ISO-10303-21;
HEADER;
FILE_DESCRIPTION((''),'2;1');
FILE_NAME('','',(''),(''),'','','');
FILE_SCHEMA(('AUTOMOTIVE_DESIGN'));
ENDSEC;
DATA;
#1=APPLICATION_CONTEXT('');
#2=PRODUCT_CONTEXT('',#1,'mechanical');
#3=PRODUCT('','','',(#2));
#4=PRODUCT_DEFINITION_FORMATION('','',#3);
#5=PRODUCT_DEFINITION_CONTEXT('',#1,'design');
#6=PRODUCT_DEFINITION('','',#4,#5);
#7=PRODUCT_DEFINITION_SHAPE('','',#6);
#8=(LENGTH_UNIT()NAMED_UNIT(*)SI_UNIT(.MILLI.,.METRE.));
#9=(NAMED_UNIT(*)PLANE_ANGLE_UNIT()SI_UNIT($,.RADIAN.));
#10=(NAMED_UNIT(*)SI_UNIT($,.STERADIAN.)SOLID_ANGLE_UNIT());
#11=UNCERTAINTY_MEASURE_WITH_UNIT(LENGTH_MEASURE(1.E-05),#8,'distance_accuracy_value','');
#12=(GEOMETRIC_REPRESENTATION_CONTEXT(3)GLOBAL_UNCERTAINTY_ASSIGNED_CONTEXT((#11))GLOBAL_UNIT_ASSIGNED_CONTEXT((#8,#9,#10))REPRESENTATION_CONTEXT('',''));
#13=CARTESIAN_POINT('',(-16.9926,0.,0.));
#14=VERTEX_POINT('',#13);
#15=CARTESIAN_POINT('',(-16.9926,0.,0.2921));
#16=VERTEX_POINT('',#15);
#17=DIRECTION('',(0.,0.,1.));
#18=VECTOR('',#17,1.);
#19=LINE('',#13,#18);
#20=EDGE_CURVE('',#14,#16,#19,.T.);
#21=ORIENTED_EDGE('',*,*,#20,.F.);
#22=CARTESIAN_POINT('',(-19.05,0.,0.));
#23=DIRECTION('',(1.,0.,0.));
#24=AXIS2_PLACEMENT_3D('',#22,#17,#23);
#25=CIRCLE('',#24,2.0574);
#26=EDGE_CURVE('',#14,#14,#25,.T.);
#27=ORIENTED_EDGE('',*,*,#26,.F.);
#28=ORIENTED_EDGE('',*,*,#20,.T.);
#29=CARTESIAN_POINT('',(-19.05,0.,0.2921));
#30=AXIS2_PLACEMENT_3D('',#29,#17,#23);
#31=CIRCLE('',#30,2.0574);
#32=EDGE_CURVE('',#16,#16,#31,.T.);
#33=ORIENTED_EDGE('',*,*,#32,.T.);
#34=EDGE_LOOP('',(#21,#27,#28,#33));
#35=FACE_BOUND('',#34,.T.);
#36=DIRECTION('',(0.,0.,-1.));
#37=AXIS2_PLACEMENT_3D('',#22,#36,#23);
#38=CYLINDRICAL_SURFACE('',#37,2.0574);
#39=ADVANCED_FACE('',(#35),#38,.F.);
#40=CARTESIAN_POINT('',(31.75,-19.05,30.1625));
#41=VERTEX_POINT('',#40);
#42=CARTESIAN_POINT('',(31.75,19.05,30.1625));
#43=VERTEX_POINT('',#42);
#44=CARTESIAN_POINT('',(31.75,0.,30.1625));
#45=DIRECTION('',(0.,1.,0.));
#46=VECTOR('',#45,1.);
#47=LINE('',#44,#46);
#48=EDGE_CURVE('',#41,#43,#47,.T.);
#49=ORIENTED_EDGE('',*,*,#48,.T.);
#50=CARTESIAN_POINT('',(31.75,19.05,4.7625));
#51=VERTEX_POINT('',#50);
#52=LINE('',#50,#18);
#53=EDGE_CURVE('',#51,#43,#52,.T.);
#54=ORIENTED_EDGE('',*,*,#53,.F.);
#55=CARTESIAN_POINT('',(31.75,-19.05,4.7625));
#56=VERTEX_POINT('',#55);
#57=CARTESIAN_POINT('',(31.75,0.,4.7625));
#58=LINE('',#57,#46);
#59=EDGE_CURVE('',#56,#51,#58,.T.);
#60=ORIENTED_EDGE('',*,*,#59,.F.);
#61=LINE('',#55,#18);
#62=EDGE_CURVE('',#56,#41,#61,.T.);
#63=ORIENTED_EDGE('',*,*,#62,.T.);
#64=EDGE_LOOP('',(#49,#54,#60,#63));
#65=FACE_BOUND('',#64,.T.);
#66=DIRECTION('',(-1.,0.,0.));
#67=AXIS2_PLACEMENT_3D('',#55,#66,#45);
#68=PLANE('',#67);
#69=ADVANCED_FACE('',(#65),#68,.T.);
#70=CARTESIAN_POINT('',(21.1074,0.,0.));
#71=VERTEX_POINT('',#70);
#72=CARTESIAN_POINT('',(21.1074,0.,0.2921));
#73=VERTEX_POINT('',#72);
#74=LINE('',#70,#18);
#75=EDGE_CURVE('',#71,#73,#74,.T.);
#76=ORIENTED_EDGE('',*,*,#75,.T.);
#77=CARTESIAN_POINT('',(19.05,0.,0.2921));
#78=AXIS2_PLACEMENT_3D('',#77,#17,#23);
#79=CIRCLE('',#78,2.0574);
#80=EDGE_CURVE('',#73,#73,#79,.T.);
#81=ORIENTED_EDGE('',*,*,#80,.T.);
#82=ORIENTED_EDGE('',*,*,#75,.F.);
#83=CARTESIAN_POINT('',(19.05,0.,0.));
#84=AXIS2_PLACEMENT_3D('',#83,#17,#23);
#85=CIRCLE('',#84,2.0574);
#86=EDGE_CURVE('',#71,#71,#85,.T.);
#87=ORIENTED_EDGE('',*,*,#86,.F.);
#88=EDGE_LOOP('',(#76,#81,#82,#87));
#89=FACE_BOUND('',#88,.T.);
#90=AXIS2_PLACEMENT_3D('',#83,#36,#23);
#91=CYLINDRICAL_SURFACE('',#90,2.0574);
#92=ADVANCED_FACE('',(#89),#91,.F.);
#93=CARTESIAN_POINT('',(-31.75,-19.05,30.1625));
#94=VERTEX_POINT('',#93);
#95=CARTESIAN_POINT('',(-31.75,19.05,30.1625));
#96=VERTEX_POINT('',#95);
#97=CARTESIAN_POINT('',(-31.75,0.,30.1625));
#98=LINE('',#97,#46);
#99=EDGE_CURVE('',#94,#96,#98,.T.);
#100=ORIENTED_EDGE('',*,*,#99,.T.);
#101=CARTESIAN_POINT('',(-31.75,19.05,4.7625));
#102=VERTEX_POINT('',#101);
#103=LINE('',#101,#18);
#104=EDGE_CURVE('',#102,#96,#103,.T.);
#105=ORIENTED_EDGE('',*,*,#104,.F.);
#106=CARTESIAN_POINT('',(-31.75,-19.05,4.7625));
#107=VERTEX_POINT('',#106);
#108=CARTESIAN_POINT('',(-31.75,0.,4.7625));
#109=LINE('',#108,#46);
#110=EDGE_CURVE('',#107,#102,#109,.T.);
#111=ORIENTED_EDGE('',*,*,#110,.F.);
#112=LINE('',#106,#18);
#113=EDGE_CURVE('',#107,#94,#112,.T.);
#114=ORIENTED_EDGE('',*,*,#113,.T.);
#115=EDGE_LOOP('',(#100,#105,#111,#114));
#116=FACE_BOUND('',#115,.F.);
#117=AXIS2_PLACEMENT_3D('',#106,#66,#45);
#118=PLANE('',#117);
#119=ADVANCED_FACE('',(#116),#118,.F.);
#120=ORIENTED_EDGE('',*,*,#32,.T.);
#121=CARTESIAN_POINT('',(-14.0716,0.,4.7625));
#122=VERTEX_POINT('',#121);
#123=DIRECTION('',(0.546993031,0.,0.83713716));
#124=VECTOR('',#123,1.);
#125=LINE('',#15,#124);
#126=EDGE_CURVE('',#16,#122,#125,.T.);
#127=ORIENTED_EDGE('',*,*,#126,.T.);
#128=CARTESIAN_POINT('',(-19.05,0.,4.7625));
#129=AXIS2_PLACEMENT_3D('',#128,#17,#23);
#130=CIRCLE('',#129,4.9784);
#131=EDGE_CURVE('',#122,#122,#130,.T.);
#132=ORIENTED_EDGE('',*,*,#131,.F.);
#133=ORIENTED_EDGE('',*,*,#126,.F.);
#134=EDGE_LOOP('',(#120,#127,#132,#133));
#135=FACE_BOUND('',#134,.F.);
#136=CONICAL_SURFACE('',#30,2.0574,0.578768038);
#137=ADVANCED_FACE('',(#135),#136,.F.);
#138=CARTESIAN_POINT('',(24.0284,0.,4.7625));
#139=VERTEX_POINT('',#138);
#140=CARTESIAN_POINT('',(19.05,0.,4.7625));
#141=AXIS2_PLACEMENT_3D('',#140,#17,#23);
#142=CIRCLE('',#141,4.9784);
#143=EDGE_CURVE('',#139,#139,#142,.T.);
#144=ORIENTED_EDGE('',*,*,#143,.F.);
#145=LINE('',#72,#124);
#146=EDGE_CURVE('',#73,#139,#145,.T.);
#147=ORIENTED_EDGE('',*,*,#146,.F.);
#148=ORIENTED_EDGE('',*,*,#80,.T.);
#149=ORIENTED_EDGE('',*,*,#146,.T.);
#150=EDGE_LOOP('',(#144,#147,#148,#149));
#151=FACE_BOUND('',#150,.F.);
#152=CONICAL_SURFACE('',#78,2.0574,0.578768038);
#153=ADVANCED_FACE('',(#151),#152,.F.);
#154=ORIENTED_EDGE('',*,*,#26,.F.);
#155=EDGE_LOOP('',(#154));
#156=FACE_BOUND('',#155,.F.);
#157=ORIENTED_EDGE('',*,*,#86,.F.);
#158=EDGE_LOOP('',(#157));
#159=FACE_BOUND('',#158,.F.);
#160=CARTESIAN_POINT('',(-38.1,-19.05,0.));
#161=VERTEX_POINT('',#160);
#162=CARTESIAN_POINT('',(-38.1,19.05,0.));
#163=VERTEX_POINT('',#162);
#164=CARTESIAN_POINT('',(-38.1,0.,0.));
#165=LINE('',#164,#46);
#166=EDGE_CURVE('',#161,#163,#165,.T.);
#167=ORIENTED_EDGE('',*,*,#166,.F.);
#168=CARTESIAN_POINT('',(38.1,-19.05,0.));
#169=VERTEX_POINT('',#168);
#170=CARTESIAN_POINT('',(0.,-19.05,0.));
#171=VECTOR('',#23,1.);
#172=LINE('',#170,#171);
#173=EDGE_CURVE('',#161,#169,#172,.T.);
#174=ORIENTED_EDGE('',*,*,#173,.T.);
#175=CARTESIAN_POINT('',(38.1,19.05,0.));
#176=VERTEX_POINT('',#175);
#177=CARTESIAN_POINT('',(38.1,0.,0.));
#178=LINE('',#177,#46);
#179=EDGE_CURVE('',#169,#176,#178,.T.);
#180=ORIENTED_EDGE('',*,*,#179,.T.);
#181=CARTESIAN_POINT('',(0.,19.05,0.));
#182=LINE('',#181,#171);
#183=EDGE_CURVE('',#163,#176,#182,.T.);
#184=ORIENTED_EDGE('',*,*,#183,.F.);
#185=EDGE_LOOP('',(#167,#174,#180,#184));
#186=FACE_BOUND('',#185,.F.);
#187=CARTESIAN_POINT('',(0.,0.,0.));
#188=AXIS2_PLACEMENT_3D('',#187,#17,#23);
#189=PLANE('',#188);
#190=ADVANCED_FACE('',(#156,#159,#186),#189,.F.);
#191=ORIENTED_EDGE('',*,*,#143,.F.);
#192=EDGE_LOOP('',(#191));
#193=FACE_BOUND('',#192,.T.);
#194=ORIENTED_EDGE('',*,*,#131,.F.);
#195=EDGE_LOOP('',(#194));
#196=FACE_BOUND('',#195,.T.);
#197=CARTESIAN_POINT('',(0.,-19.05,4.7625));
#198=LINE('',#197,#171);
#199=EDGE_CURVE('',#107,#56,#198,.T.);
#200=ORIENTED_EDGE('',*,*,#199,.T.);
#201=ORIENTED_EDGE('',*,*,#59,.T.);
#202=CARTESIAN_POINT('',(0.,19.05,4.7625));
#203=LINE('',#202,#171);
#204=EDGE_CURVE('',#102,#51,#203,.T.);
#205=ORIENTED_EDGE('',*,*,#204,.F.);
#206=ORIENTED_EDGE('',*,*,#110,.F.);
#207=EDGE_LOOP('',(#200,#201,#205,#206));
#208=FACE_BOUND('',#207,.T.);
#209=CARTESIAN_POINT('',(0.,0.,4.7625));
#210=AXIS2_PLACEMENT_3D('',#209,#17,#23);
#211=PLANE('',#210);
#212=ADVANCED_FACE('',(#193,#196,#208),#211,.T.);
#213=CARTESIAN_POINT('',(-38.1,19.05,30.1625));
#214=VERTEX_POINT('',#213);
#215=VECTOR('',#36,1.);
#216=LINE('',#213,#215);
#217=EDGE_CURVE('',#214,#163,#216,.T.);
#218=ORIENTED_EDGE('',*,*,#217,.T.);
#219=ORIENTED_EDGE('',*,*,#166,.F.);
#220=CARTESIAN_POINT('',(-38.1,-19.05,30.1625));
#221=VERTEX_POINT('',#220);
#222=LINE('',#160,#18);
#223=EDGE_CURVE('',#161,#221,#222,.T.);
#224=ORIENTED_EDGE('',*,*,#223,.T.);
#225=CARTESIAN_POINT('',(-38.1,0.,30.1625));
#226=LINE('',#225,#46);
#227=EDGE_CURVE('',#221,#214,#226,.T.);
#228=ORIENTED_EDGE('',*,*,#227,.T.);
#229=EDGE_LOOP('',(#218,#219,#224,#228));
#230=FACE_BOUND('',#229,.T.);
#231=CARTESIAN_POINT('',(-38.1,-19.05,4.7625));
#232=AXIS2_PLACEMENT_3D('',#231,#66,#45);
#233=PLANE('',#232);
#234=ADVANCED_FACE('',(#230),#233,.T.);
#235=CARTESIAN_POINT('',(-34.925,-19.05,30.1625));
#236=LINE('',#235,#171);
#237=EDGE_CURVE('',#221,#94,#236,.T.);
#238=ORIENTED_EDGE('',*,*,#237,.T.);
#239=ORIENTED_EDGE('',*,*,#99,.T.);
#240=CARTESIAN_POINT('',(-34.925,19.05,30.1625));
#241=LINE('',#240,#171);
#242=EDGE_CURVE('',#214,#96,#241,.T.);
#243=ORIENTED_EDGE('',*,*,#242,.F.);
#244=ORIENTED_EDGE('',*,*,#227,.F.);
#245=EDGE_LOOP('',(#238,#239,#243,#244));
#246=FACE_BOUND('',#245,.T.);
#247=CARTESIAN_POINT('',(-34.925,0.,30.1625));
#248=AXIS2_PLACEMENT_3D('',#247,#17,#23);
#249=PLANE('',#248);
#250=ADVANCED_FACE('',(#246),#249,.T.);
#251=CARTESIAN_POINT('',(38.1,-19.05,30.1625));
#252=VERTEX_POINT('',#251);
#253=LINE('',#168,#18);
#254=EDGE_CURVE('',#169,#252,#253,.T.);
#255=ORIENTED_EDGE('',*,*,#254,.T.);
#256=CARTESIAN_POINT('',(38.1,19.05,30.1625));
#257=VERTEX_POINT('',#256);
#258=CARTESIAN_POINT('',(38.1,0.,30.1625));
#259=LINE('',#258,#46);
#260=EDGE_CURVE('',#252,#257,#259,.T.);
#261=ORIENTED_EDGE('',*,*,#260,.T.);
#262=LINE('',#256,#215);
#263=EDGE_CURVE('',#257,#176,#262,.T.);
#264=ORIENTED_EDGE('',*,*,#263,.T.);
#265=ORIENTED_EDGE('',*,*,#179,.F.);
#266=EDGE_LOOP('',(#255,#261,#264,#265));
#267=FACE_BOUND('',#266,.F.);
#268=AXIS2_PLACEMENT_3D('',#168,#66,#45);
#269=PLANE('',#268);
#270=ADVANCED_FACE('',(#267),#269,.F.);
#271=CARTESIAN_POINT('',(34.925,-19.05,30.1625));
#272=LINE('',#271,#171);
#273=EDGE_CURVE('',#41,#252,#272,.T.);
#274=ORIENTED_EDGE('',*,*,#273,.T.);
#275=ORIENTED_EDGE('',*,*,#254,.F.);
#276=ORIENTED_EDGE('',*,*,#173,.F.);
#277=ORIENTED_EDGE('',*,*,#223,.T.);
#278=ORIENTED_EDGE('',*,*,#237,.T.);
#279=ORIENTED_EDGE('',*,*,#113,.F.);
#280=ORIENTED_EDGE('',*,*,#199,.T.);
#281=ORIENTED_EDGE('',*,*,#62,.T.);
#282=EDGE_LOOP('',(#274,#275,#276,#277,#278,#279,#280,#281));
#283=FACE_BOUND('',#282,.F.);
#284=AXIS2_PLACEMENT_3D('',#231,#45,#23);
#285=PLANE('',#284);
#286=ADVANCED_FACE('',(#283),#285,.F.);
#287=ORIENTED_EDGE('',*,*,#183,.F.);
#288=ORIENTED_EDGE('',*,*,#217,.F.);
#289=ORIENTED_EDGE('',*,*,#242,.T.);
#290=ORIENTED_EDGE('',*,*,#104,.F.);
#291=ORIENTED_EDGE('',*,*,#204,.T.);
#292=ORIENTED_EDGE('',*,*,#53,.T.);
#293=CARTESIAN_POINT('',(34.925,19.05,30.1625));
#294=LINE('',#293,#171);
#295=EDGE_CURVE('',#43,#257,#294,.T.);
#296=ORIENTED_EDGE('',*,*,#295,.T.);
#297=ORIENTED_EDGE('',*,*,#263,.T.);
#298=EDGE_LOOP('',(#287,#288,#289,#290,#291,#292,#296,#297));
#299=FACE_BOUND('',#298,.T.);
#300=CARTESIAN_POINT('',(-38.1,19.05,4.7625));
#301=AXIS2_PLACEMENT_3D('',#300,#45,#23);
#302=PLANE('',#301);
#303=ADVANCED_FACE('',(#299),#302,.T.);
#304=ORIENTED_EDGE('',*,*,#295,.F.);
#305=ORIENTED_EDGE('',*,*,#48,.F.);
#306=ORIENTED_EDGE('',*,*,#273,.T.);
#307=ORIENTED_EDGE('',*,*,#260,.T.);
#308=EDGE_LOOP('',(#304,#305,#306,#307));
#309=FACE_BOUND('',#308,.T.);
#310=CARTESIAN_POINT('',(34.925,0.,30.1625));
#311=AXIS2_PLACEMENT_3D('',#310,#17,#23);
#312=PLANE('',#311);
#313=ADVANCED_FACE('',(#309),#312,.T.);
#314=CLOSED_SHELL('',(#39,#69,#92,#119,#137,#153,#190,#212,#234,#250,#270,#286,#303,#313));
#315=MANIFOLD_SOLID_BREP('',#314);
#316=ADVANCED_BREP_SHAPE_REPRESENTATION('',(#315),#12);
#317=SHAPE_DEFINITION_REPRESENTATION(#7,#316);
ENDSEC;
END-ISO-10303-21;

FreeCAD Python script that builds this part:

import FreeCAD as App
import Part
import Sketcher
Q = App.Units.Quantity


def edges_at(feature, points):
    """Names of the edges that pass closest to the given points."""
    edges = feature.Shape.Edges
    near = lambda p: min(range(len(edges)), key=lambda i: edges[i].distToShape(Part.Vertex(*p))[0])
    return sorted({f"Edge{near(p) + 1}" for p in points})

doc = App.newDocument("Part")
body = doc.addObject("PartDesign::Body", "Body")

# Sketch on XY plane
sketch1 = body.newObject("Sketcher::SketchObject", "Sketch")
sketch1.AttachmentSupport = (doc.getObject("XY_Plane"), [""])
sketch1.MapMode = "FlatFace"
sketch1.addGeometry([
    Part.LineSegment(App.Vector(-38.1, 19.1, 0), App.Vector(-38.1, -19.1, 0)),  # 0
    Part.LineSegment(App.Vector(-38.1, -19.1, 0), App.Vector(38.1, -19.1, 0)),  # 1
    Part.LineSegment(App.Vector(38.1, -19.1, 0), App.Vector(38.1, 19.1, 0)),  # 2
    Part.LineSegment(App.Vector(38.1, 19.1, 0), App.Vector(-38.1, 19.1, 0)),  # 3
    Part.Circle(App.Vector(-19.1, 0, 0), App.Vector(0, 0, 1), 2.1),  # 4
    Part.Circle(App.Vector(19.1, 0, 0), App.Vector(0, 0, 1), 2.1),  # 5
], False)
sketch1.addConstraint([
    Sketcher.Constraint("Coincident", 0, 2, 1, 1),
    Sketcher.Constraint("Coincident", 1, 2, 2, 1),
    Sketcher.Constraint("Coincident", 2, 2, 3, 1),
    Sketcher.Constraint("Coincident", 3, 2, 0, 1),
    Sketcher.Constraint("Vertical", 0),
    Sketcher.Constraint("Horizontal", 1),
    Sketcher.Constraint("Vertical", 2),
    Sketcher.Constraint("Horizontal", 3),
    Sketcher.Constraint("Equal", 4, 5),
    Sketcher.Constraint("Symmetric", 4, 3, 5, 3, -1, 1),
    Sketcher.Constraint("Symmetric", 0, 2, 2, 2, -1, 1),
    Sketcher.Constraint("PointOnObject", 4, 3, -1),
    Sketcher.Constraint("DistanceX", 1, 1, 1, 2, Q("3 in")),
    Sketcher.Constraint("Diameter", 4, Q("0.162 in")),
    Sketcher.Constraint("DistanceY", 0, 2, 0, 1, Q("1.5 in")),
    Sketcher.Constraint("DistanceX", 4, 3, 5, 3, Q("1.5 in")),
])
pad1 = body.newObject("PartDesign::Pad", "Pad")
pad1.Profile = sketch1
pad1.Length = Q("0.1875 in")

# Sketch on XY plane
sketch2 = body.newObject("Sketcher::SketchObject", "Sketch001")
sketch2.AttachmentSupport = (doc.getObject("XY_Plane"), [""])
sketch2.MapMode = "FlatFace"
sketch2.AttachmentOffset = App.Placement(App.Vector(0, 0, 0.1875 * 25.4), App.Rotation())
sketch2.addGeometry([
    Part.LineSegment(App.Vector(-38, 19, 0), App.Vector(-38, -19, 0)),  # 0
    Part.LineSegment(App.Vector(-38, -19, 0), App.Vector(-32, -19, 0)),  # 1
    Part.LineSegment(App.Vector(-32, -19, 0), App.Vector(-32, 19, 0)),  # 2
    Part.LineSegment(App.Vector(-32, 19, 0), App.Vector(-38, 19, 0)),  # 3
    Part.LineSegment(App.Vector(32, 19, 0), App.Vector(32, -19, 0)),  # 4
    Part.LineSegment(App.Vector(32, -19, 0), App.Vector(38, -19, 0)),  # 5
    Part.LineSegment(App.Vector(38, -19, 0), App.Vector(38, 19, 0)),  # 6
    Part.LineSegment(App.Vector(38, 19, 0), App.Vector(32, 19, 0)),  # 7
], False)
sketch2.addConstraint([
    Sketcher.Constraint("Coincident", 0, 2, 1, 1),
    Sketcher.Constraint("Coincident", 1, 2, 2, 1),
    Sketcher.Constraint("Coincident", 2, 2, 3, 1),
    Sketcher.Constraint("Coincident", 3, 2, 0, 1),
    Sketcher.Constraint("Coincident", 4, 2, 5, 1),
    Sketcher.Constraint("Coincident", 5, 2, 6, 1),
    Sketcher.Constraint("Coincident", 6, 2, 7, 1),
    Sketcher.Constraint("Coincident", 7, 2, 4, 1),
    Sketcher.Constraint("Vertical", 0),
    Sketcher.Constraint("Horizontal", 1),
    Sketcher.Constraint("Vertical", 2),
    Sketcher.Constraint("Horizontal", 3),
    Sketcher.Constraint("Vertical", 4),
    Sketcher.Constraint("Horizontal", 5),
    Sketcher.Constraint("Vertical", 6),
    Sketcher.Constraint("Horizontal", 7),
    Sketcher.Constraint("Symmetric", 2, 2, 4, 2, -1, 1),
    Sketcher.Constraint("Symmetric", 0, 2, 6, 2, -1, 1),
    Sketcher.Constraint("Horizontal", 1, 2, 4, 2),
    Sketcher.Constraint("DistanceY", 0, 2, 0, 1, Q("1.5 in")),
    Sketcher.Constraint("DistanceX", 0, 2, 5, 2, Q("3 in")),
    Sketcher.Constraint("DistanceX", 1, 1, 1, 2, Q("0.25 in")),
])
pad2 = body.newObject("PartDesign::Pad", "Pad001")
pad2.Profile = sketch2
pad2.Length = Q("1 in")
doc.recompute()

chamfer = body.newObject("PartDesign::Chamfer", "Chamfer")
chamfer.Base = (pad2, edges_at(pad2, [(-21.107, 0, 4.763)]))
chamfer.ChamferType = "Two distances"
chamfer.Size = Q("0.176 in")
chamfer.Size2 = Q("0.115 in")
chamfer.FlipDirection = True
doc.recompute()

chamfer2 = body.newObject("PartDesign::Chamfer", "Chamfer001")
chamfer2.Base = (chamfer, edges_at(chamfer, [(16.993, 0, 4.763)]))
chamfer2.ChamferType = "Two distances"
chamfer2.Size = Q("0.176 in")
chamfer2.Size2 = Q("0.115 in")
chamfer2.FlipDirection = True

doc.recompute()
